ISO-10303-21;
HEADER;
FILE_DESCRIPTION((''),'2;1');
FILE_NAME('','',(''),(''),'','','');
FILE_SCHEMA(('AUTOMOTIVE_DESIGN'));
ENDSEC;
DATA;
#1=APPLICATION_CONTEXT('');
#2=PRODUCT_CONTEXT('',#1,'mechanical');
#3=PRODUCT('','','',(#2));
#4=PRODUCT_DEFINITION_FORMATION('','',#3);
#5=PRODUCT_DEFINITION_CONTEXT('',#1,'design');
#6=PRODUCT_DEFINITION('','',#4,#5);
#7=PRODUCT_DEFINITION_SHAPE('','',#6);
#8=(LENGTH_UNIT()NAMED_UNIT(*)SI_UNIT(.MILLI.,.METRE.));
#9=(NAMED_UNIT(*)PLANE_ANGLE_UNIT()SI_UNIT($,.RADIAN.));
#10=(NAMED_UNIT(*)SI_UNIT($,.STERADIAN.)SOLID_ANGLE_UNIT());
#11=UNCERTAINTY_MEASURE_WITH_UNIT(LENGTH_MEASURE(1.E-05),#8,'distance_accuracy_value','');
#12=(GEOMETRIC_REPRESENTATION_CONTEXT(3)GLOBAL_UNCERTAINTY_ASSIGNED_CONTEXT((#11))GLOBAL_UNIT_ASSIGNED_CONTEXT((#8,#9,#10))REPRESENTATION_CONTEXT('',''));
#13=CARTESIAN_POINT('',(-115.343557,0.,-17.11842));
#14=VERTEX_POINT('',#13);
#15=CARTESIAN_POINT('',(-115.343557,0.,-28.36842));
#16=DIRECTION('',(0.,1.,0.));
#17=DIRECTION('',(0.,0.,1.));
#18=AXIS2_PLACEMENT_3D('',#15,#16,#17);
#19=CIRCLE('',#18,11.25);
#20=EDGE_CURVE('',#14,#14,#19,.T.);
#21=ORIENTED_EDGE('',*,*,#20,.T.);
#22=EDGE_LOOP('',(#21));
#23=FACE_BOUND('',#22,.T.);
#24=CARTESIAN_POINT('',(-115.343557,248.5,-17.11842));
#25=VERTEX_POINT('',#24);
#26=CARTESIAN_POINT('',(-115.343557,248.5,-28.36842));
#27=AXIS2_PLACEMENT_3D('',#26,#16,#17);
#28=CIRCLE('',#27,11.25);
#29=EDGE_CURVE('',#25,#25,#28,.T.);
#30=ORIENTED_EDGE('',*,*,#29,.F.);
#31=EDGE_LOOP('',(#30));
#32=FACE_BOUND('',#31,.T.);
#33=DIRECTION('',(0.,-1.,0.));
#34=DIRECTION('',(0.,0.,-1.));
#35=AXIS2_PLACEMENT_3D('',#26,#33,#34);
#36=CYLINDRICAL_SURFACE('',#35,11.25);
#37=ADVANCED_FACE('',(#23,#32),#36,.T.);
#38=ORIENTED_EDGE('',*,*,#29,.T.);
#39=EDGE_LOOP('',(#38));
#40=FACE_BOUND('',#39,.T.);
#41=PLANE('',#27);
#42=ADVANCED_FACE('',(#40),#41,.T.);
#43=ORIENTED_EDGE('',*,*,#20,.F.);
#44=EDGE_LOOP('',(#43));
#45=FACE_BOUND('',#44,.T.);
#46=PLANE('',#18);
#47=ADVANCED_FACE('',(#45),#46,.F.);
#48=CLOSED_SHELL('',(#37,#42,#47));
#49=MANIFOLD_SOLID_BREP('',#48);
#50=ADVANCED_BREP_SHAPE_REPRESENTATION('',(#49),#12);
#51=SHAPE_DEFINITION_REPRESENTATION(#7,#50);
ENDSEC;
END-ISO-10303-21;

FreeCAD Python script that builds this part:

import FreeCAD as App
import Part
import Sketcher
Q = App.Units.Quantity

doc = App.newDocument("Part")
body = doc.addObject("PartDesign::Body", "Body")

sketch1 = doc.addObject("Sketcher::SketchObject", "Sketch")
body.addObject(sketch1)
sketch1.AttachmentSupport = (doc.XZ_Plane, [""])
sketch1.MapMode = "FlatFace"
sketch1.addGeometry(Part.Circle(App.Vector(-115, -28, 0), App.Vector(0, 0, 1), 11), False)
sketch1.addConstraint([
    Sketcher.Constraint("Diameter", 0, Q("22.5 mm")),
    Sketcher.Constraint("DistanceY", 0, 3, -1, 1, Q("28.36842 mm")),
    Sketcher.Constraint("DistanceX", 0, 3, -1, 1, Q("115.343557 mm")),
])
pad1 = doc.addObject("PartDesign::Pad", "Pad")
body.addObject(pad1)
pad1.Profile = sketch1
pad1.Length = 248.5
pad1.Reversed = True

doc.recompute()
